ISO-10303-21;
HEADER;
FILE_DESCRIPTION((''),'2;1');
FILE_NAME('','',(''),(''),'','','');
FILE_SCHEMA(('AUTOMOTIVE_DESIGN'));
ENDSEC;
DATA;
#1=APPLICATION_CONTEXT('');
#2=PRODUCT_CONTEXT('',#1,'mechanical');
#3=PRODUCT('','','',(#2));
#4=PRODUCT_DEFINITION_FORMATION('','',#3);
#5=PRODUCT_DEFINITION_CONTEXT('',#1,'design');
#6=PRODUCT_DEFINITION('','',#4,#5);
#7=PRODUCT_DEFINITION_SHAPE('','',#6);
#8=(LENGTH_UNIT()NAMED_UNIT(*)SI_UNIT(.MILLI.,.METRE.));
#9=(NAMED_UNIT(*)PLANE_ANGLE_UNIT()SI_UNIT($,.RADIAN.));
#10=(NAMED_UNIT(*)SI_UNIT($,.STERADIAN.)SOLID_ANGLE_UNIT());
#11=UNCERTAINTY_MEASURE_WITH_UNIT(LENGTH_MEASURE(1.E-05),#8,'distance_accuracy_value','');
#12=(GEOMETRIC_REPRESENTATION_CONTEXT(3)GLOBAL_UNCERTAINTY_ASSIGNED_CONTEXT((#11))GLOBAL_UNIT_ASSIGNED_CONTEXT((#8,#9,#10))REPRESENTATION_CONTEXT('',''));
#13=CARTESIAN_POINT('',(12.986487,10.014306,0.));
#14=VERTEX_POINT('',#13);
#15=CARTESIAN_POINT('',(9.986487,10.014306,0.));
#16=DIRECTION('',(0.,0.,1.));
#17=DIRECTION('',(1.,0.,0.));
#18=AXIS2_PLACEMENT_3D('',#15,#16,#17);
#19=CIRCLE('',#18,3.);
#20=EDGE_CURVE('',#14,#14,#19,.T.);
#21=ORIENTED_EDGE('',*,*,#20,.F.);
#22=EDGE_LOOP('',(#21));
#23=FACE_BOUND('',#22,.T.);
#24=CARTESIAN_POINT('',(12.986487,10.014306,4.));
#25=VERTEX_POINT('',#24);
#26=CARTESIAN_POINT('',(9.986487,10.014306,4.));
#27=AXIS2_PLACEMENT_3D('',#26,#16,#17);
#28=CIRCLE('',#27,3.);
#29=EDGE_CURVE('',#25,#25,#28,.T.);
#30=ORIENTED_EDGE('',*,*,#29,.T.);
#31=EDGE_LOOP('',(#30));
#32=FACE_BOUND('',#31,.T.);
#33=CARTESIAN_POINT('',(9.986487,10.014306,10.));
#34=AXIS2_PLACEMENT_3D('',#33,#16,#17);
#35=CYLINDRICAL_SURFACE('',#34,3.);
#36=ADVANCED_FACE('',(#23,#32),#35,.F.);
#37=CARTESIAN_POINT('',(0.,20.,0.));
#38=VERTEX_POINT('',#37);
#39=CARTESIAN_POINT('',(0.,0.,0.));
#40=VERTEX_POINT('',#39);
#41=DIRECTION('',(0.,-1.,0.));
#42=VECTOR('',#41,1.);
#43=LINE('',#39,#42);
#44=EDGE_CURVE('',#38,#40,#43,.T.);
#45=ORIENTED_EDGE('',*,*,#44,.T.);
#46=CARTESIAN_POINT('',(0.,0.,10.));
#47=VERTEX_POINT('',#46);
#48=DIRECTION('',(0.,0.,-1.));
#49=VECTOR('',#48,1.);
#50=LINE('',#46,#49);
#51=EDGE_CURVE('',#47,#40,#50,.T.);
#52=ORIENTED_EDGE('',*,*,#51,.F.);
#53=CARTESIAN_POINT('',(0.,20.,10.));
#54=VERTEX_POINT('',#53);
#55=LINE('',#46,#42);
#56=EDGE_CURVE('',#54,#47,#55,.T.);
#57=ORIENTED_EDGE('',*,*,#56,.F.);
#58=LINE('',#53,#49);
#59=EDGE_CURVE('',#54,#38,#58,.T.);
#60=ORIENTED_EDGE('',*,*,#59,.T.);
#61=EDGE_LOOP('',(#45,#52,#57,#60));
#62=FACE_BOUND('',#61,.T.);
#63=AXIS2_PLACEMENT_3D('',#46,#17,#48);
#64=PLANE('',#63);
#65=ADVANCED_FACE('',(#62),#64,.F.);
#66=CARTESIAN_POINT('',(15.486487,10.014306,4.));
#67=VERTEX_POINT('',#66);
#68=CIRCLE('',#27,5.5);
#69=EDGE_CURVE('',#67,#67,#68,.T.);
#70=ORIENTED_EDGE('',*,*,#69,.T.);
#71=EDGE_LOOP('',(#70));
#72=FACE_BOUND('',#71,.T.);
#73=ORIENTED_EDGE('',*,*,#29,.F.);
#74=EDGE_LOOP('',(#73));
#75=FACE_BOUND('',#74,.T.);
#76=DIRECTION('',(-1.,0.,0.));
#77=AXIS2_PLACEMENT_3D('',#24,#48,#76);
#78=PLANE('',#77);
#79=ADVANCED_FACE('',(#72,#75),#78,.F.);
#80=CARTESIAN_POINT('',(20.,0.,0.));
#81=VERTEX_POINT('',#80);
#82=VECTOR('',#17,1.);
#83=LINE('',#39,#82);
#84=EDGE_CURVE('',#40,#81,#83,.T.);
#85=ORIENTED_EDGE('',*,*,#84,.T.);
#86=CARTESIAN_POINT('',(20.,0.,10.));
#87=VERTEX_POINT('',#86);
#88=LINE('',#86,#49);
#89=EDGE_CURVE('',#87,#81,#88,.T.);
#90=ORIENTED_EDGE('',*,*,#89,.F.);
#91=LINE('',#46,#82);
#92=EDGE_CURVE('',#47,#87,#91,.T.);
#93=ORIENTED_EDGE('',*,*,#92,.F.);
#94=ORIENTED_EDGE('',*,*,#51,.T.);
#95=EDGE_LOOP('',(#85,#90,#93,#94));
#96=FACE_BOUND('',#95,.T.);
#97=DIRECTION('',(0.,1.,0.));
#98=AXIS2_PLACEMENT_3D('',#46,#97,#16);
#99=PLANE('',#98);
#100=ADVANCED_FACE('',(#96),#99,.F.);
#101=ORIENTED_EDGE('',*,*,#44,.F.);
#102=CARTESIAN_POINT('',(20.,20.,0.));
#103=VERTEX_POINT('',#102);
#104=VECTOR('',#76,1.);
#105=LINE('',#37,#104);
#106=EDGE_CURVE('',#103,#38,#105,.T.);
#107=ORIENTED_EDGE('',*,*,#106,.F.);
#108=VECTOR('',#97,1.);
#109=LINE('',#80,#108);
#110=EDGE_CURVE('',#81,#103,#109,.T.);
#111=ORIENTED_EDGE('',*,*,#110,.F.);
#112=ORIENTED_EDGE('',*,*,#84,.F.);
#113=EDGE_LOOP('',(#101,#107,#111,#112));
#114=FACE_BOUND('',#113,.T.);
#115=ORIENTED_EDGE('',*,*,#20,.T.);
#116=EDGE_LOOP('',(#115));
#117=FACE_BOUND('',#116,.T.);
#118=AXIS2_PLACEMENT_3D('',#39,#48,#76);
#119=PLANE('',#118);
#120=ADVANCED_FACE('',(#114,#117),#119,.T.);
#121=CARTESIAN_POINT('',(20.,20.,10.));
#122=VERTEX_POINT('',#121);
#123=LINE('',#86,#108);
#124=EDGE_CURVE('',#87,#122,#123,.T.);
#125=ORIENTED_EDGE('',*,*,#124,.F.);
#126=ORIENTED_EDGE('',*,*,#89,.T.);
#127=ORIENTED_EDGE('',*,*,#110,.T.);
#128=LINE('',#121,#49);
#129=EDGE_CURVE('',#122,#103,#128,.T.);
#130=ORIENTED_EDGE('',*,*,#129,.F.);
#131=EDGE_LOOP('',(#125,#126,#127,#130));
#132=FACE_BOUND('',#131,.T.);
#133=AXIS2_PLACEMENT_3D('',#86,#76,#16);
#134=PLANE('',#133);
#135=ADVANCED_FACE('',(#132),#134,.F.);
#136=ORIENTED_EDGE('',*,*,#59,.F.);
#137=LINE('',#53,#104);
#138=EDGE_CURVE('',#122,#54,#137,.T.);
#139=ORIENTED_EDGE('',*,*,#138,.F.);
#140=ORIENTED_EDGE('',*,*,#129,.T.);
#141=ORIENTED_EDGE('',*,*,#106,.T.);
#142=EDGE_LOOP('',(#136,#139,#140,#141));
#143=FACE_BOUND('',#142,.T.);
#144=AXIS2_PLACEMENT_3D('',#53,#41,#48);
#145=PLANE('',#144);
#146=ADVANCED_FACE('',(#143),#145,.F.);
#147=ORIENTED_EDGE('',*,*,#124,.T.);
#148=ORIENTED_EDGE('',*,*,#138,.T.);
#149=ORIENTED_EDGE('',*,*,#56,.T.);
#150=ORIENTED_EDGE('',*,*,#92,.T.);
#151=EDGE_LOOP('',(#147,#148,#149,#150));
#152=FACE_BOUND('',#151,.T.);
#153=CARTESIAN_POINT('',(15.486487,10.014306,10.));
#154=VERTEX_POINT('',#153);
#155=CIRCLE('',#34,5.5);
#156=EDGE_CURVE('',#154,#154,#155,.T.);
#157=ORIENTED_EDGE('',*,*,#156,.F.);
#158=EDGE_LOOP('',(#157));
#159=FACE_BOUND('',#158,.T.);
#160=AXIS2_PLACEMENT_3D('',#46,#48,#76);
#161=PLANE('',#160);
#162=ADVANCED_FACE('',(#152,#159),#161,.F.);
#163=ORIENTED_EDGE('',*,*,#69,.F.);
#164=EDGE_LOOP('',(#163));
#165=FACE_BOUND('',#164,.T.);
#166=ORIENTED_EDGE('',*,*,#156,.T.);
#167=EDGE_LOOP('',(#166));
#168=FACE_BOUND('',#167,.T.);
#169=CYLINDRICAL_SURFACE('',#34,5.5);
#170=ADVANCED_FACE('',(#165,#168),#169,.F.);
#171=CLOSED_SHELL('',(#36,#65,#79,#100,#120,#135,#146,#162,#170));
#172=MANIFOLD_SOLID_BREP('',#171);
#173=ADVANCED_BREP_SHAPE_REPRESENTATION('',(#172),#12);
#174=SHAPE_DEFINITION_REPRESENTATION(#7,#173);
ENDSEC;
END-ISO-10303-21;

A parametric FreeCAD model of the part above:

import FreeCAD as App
import Part
import Sketcher
from FreeCAD import Vector
Q = App.Units.Quantity

doc = App.newDocument("Part")
body = doc.addObject("PartDesign::Body", "Body")

# Sketch on XY plane
sketch1 = body.newObject("Sketcher::SketchObject", "Sketch")
sketch1.AttachmentSupport = (doc.getObject("XY_Plane"), [""])
sketch1.MapMode = "FlatFace"
sketch1.addGeometry([
    Part.LineSegment(Vector(0, 20, 0), Vector(0, 0, 0)),
    Part.LineSegment(Vector(0, 0, 0), Vector(20, 0, 0)),
    Part.LineSegment(Vector(20, 0, 0), Vector(20, 20, 0)),
    Part.LineSegment(Vector(20, 20, 0), Vector(0, 20, 0)),
], False)
sketch1.addConstraint([
    Sketcher.Constraint("Coincident", 0, 2, 1, 1),
    Sketcher.Constraint("Coincident", 1, 2, 2, 1),
    Sketcher.Constraint("Coincident", 2, 2, 3, 1),
    Sketcher.Constraint("Coincident", 3, 2, 0, 1),
    Sketcher.Constraint("Vertical", 0),
    Sketcher.Constraint("Horizontal", 1),
    Sketcher.Constraint("Vertical", 2),
    Sketcher.Constraint("Horizontal", 3),
    Sketcher.Constraint("Coincident", 0, 2, -1, 1),
    Sketcher.Constraint("Equal", 3, 0),
    Sketcher.Constraint("DistanceX", 1, 1, 1, 2, Q("20 mm")),
])
pad1 = body.newObject("PartDesign::Pad", "Pad")
pad1.Profile = sketch1
pad1.Length = 10

# Sketch on XY plane
sketch2 = body.newObject("Sketcher::SketchObject", "Sketch001")
sketch2.AttachmentSupport = (doc.getObject("XY_Plane"), [""])
sketch2.MapMode = "FlatFace"
sketch2.AttachmentOffset = App.Placement(Vector(0, 0, 10), App.Rotation())
sketch2.addGeometry(Part.Circle(Vector(10, 10, 0), Vector(0, 0, 1), 3), False)
sketch2.addConstraint([
    Sketcher.Constraint("Diameter", 0, Q("6 mm")),
    Sketcher.Constraint("DistanceX", -1, 1, 0, 3, Q("9.986487 mm")),
    Sketcher.Constraint("DistanceY", -1, 1, 0, 3, Q("10.014306 mm")),
])
doc.recompute()
hole = body.newObject("PartDesign::Hole", "Hole")
hole.Profile = sketch2
hole.ThreadType = "None"
hole.Diameter = 6
hole.DepthType = "ThroughAll"
hole.HoleCutType = "Counterbore"
hole.HoleCutDiameter = 11
hole.HoleCutDepth = 6

doc.recompute()
